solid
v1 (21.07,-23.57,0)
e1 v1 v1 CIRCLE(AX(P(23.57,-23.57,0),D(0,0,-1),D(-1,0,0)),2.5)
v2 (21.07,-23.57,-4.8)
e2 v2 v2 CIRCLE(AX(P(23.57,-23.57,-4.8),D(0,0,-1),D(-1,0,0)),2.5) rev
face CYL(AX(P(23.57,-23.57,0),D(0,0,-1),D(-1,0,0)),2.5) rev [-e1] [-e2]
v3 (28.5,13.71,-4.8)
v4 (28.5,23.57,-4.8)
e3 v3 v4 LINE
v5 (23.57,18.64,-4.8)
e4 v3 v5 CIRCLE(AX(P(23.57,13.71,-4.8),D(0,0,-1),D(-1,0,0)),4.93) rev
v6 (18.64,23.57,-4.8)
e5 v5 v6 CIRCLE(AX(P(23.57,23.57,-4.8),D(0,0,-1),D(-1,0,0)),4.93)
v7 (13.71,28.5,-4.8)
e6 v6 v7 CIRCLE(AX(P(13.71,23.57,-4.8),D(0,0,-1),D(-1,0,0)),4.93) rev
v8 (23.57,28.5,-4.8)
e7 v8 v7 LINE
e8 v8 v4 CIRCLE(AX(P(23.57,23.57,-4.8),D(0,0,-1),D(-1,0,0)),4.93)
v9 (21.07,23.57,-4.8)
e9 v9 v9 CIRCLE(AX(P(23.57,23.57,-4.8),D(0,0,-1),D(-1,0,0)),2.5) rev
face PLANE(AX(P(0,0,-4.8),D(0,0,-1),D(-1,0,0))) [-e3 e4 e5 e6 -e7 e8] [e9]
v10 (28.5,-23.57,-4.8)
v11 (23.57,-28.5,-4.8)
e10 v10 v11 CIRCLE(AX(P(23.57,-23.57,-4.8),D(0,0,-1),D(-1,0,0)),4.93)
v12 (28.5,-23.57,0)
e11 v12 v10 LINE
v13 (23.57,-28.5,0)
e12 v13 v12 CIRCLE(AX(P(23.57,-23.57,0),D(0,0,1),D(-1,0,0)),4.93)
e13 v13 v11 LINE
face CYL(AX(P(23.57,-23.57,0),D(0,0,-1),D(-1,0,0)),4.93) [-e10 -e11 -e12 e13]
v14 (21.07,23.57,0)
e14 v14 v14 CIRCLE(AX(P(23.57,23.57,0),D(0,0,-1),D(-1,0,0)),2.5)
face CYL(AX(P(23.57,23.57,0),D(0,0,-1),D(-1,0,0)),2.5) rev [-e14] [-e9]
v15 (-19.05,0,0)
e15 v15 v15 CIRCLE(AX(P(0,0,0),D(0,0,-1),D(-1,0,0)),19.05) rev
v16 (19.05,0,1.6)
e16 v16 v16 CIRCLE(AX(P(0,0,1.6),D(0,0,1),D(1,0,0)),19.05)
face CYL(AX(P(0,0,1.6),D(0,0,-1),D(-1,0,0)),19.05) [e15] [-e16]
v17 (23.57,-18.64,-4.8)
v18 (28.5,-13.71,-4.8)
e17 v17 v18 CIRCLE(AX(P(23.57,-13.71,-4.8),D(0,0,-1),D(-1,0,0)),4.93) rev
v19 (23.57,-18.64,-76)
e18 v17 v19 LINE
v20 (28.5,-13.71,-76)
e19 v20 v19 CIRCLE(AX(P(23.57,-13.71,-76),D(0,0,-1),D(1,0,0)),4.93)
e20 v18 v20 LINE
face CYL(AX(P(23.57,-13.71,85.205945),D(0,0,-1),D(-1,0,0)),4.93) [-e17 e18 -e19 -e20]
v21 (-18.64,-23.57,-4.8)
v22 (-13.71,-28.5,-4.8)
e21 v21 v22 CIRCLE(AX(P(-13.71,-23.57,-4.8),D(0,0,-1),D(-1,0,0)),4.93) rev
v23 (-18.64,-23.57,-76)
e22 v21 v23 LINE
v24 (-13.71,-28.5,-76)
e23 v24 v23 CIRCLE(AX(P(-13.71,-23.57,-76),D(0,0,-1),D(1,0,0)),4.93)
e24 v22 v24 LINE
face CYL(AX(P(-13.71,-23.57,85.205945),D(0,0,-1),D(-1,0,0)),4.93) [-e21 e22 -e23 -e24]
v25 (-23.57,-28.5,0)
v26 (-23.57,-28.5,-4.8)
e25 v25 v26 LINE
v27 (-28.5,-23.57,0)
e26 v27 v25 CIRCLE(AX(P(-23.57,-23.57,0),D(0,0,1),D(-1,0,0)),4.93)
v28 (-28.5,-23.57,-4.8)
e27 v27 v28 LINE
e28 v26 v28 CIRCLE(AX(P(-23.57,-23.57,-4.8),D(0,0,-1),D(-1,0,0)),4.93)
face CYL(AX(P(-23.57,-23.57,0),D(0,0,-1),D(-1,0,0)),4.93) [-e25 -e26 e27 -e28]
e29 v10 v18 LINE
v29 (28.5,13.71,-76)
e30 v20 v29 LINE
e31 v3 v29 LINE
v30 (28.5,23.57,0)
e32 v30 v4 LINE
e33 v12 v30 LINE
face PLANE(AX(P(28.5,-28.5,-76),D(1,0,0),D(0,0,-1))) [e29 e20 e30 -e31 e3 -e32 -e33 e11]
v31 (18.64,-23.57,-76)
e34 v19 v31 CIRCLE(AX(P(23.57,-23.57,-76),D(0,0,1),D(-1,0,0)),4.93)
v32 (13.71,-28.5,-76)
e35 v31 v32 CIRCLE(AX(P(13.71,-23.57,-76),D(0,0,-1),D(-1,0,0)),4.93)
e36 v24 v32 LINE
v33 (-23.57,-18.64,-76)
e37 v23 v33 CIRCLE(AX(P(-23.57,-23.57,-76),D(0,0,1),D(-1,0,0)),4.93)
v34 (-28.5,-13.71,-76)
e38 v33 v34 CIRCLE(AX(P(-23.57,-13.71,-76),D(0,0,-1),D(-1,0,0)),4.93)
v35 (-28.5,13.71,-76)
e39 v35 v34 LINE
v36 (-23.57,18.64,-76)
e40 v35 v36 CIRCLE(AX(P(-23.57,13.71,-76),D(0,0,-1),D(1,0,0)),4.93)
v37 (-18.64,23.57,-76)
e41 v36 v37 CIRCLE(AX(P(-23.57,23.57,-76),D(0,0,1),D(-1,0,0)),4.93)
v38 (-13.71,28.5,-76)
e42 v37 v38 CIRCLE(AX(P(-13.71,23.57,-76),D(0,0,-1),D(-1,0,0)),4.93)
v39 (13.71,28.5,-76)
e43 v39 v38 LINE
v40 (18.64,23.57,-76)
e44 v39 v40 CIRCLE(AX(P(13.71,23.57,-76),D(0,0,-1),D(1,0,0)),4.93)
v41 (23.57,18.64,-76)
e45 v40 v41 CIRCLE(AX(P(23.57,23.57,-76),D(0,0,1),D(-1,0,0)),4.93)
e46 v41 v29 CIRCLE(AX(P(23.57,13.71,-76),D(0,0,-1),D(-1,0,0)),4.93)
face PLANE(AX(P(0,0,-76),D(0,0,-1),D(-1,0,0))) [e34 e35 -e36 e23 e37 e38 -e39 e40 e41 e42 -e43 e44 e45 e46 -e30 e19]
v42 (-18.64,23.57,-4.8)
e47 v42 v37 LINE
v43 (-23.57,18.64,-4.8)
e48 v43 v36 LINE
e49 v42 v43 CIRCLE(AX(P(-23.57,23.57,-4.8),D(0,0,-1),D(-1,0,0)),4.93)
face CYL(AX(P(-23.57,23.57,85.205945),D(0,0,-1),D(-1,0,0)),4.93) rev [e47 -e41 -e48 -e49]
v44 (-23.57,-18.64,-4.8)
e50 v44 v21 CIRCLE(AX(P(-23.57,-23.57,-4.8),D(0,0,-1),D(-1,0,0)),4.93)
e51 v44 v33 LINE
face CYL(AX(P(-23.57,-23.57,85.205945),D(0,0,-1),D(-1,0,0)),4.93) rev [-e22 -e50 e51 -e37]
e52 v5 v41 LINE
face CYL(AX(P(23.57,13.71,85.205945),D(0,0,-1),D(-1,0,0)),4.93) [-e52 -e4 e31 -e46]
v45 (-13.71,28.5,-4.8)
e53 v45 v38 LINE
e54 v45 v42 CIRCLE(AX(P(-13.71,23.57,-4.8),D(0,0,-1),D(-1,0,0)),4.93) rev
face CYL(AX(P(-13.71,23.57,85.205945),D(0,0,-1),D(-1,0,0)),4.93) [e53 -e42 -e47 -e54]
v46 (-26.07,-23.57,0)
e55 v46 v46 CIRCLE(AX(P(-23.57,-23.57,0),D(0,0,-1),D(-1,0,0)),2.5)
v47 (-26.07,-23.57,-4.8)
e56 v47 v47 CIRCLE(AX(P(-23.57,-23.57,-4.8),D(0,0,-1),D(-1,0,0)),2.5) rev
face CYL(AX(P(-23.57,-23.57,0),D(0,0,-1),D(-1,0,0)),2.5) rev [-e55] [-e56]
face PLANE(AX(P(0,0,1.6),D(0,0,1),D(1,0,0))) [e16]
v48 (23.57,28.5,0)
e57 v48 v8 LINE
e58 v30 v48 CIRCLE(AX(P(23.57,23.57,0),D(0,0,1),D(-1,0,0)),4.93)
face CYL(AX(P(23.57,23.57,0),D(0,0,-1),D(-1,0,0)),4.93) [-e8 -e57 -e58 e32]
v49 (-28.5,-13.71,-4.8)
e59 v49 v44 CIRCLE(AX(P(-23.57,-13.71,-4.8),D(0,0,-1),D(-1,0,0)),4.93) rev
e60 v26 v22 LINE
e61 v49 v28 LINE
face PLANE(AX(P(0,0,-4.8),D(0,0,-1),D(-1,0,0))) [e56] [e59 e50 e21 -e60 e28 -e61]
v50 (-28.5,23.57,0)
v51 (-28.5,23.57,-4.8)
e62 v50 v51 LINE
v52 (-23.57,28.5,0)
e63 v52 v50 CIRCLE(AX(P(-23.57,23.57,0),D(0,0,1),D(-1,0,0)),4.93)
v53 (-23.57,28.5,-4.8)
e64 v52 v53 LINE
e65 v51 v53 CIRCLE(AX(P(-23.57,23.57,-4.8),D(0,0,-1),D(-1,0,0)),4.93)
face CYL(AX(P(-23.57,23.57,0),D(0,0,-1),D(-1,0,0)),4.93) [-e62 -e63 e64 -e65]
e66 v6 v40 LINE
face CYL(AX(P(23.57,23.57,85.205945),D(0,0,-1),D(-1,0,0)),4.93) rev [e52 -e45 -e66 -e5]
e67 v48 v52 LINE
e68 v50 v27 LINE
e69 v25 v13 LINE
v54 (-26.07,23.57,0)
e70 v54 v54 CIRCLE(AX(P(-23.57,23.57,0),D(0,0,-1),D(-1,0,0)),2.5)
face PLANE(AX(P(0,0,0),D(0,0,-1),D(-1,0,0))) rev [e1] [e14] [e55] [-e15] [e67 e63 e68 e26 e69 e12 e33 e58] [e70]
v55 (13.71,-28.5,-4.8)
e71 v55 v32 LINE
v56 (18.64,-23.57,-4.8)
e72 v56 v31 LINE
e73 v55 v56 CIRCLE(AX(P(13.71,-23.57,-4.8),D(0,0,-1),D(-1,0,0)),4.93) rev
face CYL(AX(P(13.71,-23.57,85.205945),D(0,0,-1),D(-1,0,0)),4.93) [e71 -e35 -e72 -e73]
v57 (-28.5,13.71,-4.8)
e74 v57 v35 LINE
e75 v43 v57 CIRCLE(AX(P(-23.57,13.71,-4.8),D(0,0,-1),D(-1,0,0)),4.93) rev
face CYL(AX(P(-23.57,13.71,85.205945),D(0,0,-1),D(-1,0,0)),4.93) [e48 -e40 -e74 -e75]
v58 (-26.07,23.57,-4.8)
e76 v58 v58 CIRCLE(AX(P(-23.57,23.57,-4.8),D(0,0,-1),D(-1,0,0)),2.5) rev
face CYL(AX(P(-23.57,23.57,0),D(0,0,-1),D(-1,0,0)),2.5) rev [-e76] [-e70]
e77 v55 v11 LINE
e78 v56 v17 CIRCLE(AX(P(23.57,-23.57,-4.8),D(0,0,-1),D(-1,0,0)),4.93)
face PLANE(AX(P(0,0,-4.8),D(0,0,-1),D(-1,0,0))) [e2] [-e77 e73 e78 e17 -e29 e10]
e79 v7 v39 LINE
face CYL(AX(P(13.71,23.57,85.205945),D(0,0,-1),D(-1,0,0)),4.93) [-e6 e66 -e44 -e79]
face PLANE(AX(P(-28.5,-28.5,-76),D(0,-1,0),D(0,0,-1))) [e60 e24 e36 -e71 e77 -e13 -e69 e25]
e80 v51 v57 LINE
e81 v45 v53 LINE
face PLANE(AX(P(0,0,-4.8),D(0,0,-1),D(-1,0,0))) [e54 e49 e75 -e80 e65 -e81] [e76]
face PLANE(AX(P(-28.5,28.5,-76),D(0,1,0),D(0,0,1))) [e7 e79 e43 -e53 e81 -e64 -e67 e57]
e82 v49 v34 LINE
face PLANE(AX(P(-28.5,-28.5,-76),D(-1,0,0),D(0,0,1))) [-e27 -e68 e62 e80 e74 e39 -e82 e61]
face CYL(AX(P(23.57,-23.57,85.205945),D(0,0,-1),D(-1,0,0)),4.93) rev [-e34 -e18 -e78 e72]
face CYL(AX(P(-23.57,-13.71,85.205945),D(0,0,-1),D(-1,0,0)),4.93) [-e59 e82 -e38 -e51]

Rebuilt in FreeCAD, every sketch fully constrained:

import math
import FreeCAD as App
import Part
import Sketcher
Q = App.Units.Quantity


def add_polygon(sketch, points):
    """Adds a closed chain of lines whose ends are joined by coincident constraints."""
    first, n = sketch.GeometryCount, len(points)
    for a, b in zip(points, points[1:] + points[:1]):
        sketch.addGeometry(Part.LineSegment(App.Vector(*a, 0), App.Vector(*b, 0)), False)
    for i in range(n):
        sketch.addConstraint(Sketcher.Constraint("Coincident", first + i, 2, first + (i + 1) % n, 1))

doc = App.newDocument("Part")
body = doc.addObject("PartDesign::Body", "Body")

# Sketch on XY plane
sketch1 = body.newObject("Sketcher::SketchObject", "Sketch")
sketch1.AttachmentSupport = (doc.getObject("XY_Plane"), [""])
sketch1.MapMode = "FlatFace"
add_polygon(sketch1, [(-28.5, 28.5), (-28.5, -28.5), (28.5, -28.5), (28.5, 28.5)])  # lines 0-3
sketch1.addConstraint([
    Sketcher.Constraint("Vertical", 0),
    Sketcher.Constraint("Horizontal", 1),
    Sketcher.Constraint("Vertical", 2),
    Sketcher.Constraint("Horizontal", 3),
    Sketcher.Constraint("Symmetric", 0, 2, 2, 2, -1, 1),
    Sketcher.Constraint("Equal", 3, 0),
    Sketcher.Constraint("DistanceX", 1, 1, 1, 2, Q("57 mm")),
])
pad1 = body.newObject("PartDesign::Pad", "Pad")
pad1.Profile = sketch1
pad1.Length = 76
pad1.Reversed = True

# Sketch on XY plane
sketch2 = body.newObject("Sketcher::SketchObject", "Sketch001")
sketch2.AttachmentSupport = (doc.getObject("XY_Plane"), [""])
sketch2.MapMode = "FlatFace"
sketch2.AttachmentOffset = App.Placement(App.Vector(0, 0, -76), App.Rotation())
sketch2.addGeometry([
    Part.Circle(App.Vector(23.57, 23.57, 0), App.Vector(0, 0, 1), 2.5),
    Part.Circle(App.Vector(23.57, -23.57, 0), App.Vector(0, 0, 1), 2.5),
    Part.Circle(App.Vector(-23.57, 23.57, 0), App.Vector(0, 0, 1), 2.5),
    Part.Circle(App.Vector(-23.57, -23.57, 0), App.Vector(0, 0, 1), 2.5),
], False)
sketch2.addConstraint([
    Sketcher.Constraint("Equal", 0, 1),
    Sketcher.Constraint("Equal", 1, 2),
    Sketcher.Constraint("Equal", 2, 3),
    Sketcher.Constraint("Symmetric", 1, 3, 2, 3, -1, 1),
    Sketcher.Constraint("Symmetric", 0, 3, 3, 3, -1, 1),
    Sketcher.Constraint("Symmetric", 0, 3, 2, 3, -2),
    Sketcher.Constraint("Diameter", 0, Q("5 mm")),
    Sketcher.Constraint("DistanceX", -1, 1, 0, 3, Q("23.57 mm")),
    Sketcher.Constraint("DistanceY", -1, 1, 0, 3, Q("23.57 mm")),
])
pocket1 = body.newObject("PartDesign::Pocket", "Pocket")
pocket1.Profile = sketch2
pocket1.Type = "ThroughAll"
pocket1.Reversed = True

# Sketch on XY plane
sketch3 = body.newObject("Sketcher::SketchObject", "Sketch002")
sketch3.AttachmentSupport = (doc.getObject("XY_Plane"), [""])
sketch3.MapMode = "FlatFace"
sketch3.AttachmentOffset = App.Placement(App.Vector(0, 0, -76), App.Rotation())
sketch3.addGeometry([
    Part.LineSegment(App.Vector(28.5, 28.5, 0), App.Vector(28.5, 23.57, 0)),  # 0
    Part.ArcOfCircle(Part.Circle(App.Vector(23.57, 23.57, 0), App.Vector(0, 0, 1), 4.93), math.radians(0), math.radians(90)),  # 1
    Part.LineSegment(App.Vector(23.57, 28.5, 0), App.Vector(28.5, 28.5, 0)),  # 2
    Part.LineSegment(App.Vector(-28.5, 28.5, 0), App.Vector(-23.57, 28.5, 0)),  # 3
    Part.ArcOfCircle(Part.Circle(App.Vector(-23.57, 23.57, 0), App.Vector(0, 0, 1), 4.93), math.radians(90), math.radians(180)),  # 4
    Part.LineSegment(App.Vector(-28.5, 23.57, 0), App.Vector(-28.5, 28.5, 0)),  # 5
    Part.LineSegment(App.Vector(28.5, -23.57, 0), App.Vector(28.5, -28.5, 0)),  # 6
    Part.LineSegment(App.Vector(28.5, -28.5, 0), App.Vector(23.57, -28.5, 0)),  # 7
    Part.ArcOfCircle(Part.Circle(App.Vector(23.57, -23.57, 0), App.Vector(0, 0, 1), 4.93), math.radians(-90), math.radians(0)),  # 8
    Part.LineSegment(App.Vector(-23.57, -28.5, 0), App.Vector(-28.5, -28.5, 0)),  # 9
    Part.LineSegment(App.Vector(-28.5, -28.5, 0), App.Vector(-28.5, -23.57, 0)),  # 10
    Part.ArcOfCircle(Part.Circle(App.Vector(-23.57, -23.57, 0), App.Vector(0, 0, 1), 4.93), math.radians(-180), math.radians(-90)),  # 11
], False)
sketch3.addConstraint([
    Sketcher.Constraint("Tangent", 0, 2, 1, 1),
    Sketcher.Constraint("Tangent", 1, 2, 2, 1),
    Sketcher.Constraint("Coincident", 2, 2, 0, 1),
    Sketcher.Constraint("Tangent", 3, 2, 4, 1),
    Sketcher.Constraint("Tangent", 4, 2, 5, 1),
    Sketcher.Constraint("Coincident", 5, 2, 3, 1),
    Sketcher.Constraint("Coincident", 6, 2, 7, 1),
    Sketcher.Constraint("Tangent", 7, 2, 8, 1),
    Sketcher.Constraint("Tangent", 8, 2, 6, 1),
    Sketcher.Constraint("Coincident", 9, 2, 10, 1),
    Sketcher.Constraint("Tangent", 10, 2, 11, 1),
    Sketcher.Constraint("Tangent", 11, 2, 9, 1),
    Sketcher.Constraint("Vertical", 0),
    Sketcher.Constraint("Horizontal", 2),
    Sketcher.Constraint("Horizontal", 3),
    Sketcher.Constraint("Vertical", 5),
    Sketcher.Constraint("Vertical", 6),
    Sketcher.Constraint("Horizontal", 7),
    Sketcher.Constraint("Horizontal", 9),
    Sketcher.Constraint("Vertical", 10),
    Sketcher.Constraint("Equal", 1, 4),
    Sketcher.Constraint("Equal", 4, 8),
    Sketcher.Constraint("Equal", 8, 11),
    Sketcher.Constraint("Symmetric", 4, 3, 8, 3, -1, 1),
    Sketcher.Constraint("Symmetric", 1, 3, 11, 3, -1, 1),
    Sketcher.Constraint("Symmetric", 1, 3, 4, 3, -2),
    Sketcher.Constraint("Radius", 1, Q("4.93 mm")),
    Sketcher.Constraint("DistanceY", 6, 2, 2, 2, Q("57 mm")),
    Sketcher.Constraint("DistanceX", -1, 1, 0, 2, Q("28.5 mm")),
])
pocket2 = body.newObject("PartDesign::Pocket", "Pocket001")
pocket2.Profile = sketch3
pocket2.Type = "ThroughAll"
pocket2.Reversed = True

# Sketch on XY plane
sketch4 = body.newObject("Sketcher::SketchObject", "Sketch003")
sketch4.AttachmentSupport = (doc.getObject("XY_Plane"), [""])
sketch4.MapMode = "FlatFace"
sketch4.AttachmentOffset = App.Placement(App.Vector(0, 0, -76), App.Rotation())
add_polygon(sketch4, [(40.579, 40.579), (40.579, -40.579), (-40.579, -40.579), (-40.579, 40.579)])  # lines 0-3
sketch4.addGeometry(Part.LineSegment(App.Vector(28.5, -13.71, 0), App.Vector(28.5, 13.71, 0)), False)  # 4
sketch4.addGeometry(Part.ArcOfCircle(Part.Circle(App.Vector(23.57, 13.71, 0), App.Vector(0, 0, 1), 4.93), math.radians(0), math.radians(90)), False)  # 5
sketch4.addGeometry(Part.ArcOfCircle(Part.Circle(App.Vector(23.57, 23.57, 0), App.Vector(0, 0, 1), 4.93), math.radians(-180), math.radians(-90)), False)  # 6
sketch4.addGeometry(Part.ArcOfCircle(Part.Circle(App.Vector(13.71, 23.57, 0), App.Vector(0, 0, 1), 4.93), math.radians(0), math.radians(90)), False)  # 7
sketch4.addGeometry(Part.LineSegment(App.Vector(13.71, 28.5, 0), App.Vector(-13.71, 28.5, 0)), False)  # 8
sketch4.addGeometry(Part.ArcOfCircle(Part.Circle(App.Vector(-13.71, 23.57, 0), App.Vector(0, 0, 1), 4.93), math.radians(90), math.radians(180)), False)  # 9
sketch4.addGeometry(Part.ArcOfCircle(Part.Circle(App.Vector(-23.57, 23.57, 0), App.Vector(0, 0, 1), 4.93), math.radians(-90), math.radians(0)), False)  # 10
sketch4.addGeometry(Part.ArcOfCircle(Part.Circle(App.Vector(-23.57, 13.71, 0), App.Vector(0, 0, 1), 4.93), math.radians(90), math.radians(180)), False)  # 11
sketch4.addGeometry(Part.LineSegment(App.Vector(-28.5, 13.71, 0), App.Vector(-28.5, -13.71, 0)), False)  # 12
sketch4.addGeometry(Part.ArcOfCircle(Part.Circle(App.Vector(-23.57, -13.71, 0), App.Vector(0, 0, 1), 4.93), math.radians(-180), math.radians(-90)), False)  # 13
sketch4.addGeometry(Part.ArcOfCircle(Part.Circle(App.Vector(-23.57, -23.57, 0), App.Vector(0, 0, 1), 4.93), math.radians(0), math.radians(90)), False)  # 14
sketch4.addGeometry(Part.ArcOfCircle(Part.Circle(App.Vector(-13.71, -23.57, 0), App.Vector(0, 0, 1), 4.93), math.radians(-180), math.radians(-90)), False)  # 15
sketch4.addGeometry(Part.LineSegment(App.Vector(-13.71, -28.5, 0), App.Vector(13.71, -28.5, 0)), False)  # 16
sketch4.addGeometry(Part.ArcOfCircle(Part.Circle(App.Vector(13.71, -23.57, 0), App.Vector(0, 0, 1), 4.93), math.radians(-90), math.radians(0)), False)  # 17
sketch4.addGeometry(Part.ArcOfCircle(Part.Circle(App.Vector(23.57, -23.57, 0), App.Vector(0, 0, 1), 4.93), math.radians(90), math.radians(180)), False)  # 18
sketch4.addGeometry(Part.ArcOfCircle(Part.Circle(App.Vector(23.57, -13.71, 0), App.Vector(0, 0, 1), 4.93), math.radians(-90), math.radians(0)), False)  # 19
sketch4.addConstraint([
    Sketcher.Constraint("Tangent", 4, 2, 5, 1),
    Sketcher.Constraint("Tangent", 5, 2, 6, 2),
    Sketcher.Constraint("Tangent", 6, 1, 7, 1),
    Sketcher.Constraint("Tangent", 7, 2, 8, 1),
    Sketcher.Constraint("Tangent", 8, 2, 9, 1),
    Sketcher.Constraint("Tangent", 9, 2, 10, 2),
    Sketcher.Constraint("Tangent", 10, 1, 11, 1),
    Sketcher.Constraint("Tangent", 11, 2, 12, 1),
    Sketcher.Constraint("Tangent", 12, 2, 13, 1),
    Sketcher.Constraint("Tangent", 13, 2, 14, 2),
    Sketcher.Constraint("Tangent", 14, 1, 15, 1),
    Sketcher.Constraint("Tangent", 15, 2, 16, 1),
    Sketcher.Constraint("Tangent", 16, 2, 17, 1),
    Sketcher.Constraint("Tangent", 17, 2, 18, 2),
    Sketcher.Constraint("Tangent", 18, 1, 19, 1),
    Sketcher.Constraint("Tangent", 19, 2, 4, 1),
    Sketcher.Constraint("Vertical", 0),
    Sketcher.Constraint("Horizontal", 1),
    Sketcher.Constraint("Vertical", 2),
    Sketcher.Constraint("Horizontal", 3),
    Sketcher.Constraint("Vertical", 4),
    Sketcher.Constraint("Horizontal", 8),
    Sketcher.Constraint("Vertical", 12),
    Sketcher.Constraint("Horizontal", 16),
    Sketcher.Constraint("Equal", 5, 6),
    Sketcher.Constraint("Equal", 6, 7),
    Sketcher.Constraint("Equal", 7, 9),
    Sketcher.Constraint("Equal", 9, 10),
    Sketcher.Constraint("Equal", 10, 11),
    Sketcher.Constraint("Equal", 11, 13),
    Sketcher.Constraint("Equal", 13, 14),
    Sketcher.Constraint("Equal", 14, 15),
    Sketcher.Constraint("Equal", 15, 17),
    Sketcher.Constraint("Equal", 17, 18),
    Sketcher.Constraint("Equal", 18, 19),
    Sketcher.Constraint("Symmetric", 5, 3, 13, 3, -1, 1),
    Sketcher.Constraint("Symmetric", 7, 3, 15, 3, -1, 1),
    Sketcher.Constraint("Symmetric", 10, 3, 18, 3, -1, 1),
    Sketcher.Constraint("Symmetric", 0, 2, 2, 2, -1, 1),
    Sketcher.Constraint("Symmetric", 6, 3, 10, 3, -2),
    Sketcher.Constraint("Horizontal", 6, 3, 7, 3),
    Sketcher.Constraint("Vertical", 5, 3, 6, 3),
    Sketcher.Constraint("Equal", 3, 0),
    Sketcher.Constraint("Equal", 16, 4),
    Sketcher.Constraint("Radius", 5, Q("4.93 mm")),
    Sketcher.Constraint("DistanceX", 8, 2, 8, 1, Q("27.42 mm")),
    Sketcher.Constraint("DistanceX", 1, 2, 1, 1, Q("81.158 mm")),
])
pocket3 = body.newObject("PartDesign::Pocket", "Pocket002")
pocket3.Profile = sketch4
pocket3.Length = 71.2
pocket3.Reversed = True

# Sketch on XY plane
sketch5 = body.newObject("Sketcher::SketchObject", "Sketch004")
sketch5.AttachmentSupport = (doc.getObject("XY_Plane"), [""])
sketch5.MapMode = "FlatFace"
sketch5.addGeometry(Part.Circle(App.Vector(0, 0, 0), App.Vector(0, 0, 1), 19.05), False)
sketch5.addConstraint([
    Sketcher.Constraint("Coincident", 0, 3, -1, 1),
    Sketcher.Constraint("Diameter", 0, Q("38.1 mm")),
])
pad2 = body.newObject("PartDesign::Pad", "Pad001")
pad2.Profile = sketch5
pad2.Length = 1.6

doc.recompute()
